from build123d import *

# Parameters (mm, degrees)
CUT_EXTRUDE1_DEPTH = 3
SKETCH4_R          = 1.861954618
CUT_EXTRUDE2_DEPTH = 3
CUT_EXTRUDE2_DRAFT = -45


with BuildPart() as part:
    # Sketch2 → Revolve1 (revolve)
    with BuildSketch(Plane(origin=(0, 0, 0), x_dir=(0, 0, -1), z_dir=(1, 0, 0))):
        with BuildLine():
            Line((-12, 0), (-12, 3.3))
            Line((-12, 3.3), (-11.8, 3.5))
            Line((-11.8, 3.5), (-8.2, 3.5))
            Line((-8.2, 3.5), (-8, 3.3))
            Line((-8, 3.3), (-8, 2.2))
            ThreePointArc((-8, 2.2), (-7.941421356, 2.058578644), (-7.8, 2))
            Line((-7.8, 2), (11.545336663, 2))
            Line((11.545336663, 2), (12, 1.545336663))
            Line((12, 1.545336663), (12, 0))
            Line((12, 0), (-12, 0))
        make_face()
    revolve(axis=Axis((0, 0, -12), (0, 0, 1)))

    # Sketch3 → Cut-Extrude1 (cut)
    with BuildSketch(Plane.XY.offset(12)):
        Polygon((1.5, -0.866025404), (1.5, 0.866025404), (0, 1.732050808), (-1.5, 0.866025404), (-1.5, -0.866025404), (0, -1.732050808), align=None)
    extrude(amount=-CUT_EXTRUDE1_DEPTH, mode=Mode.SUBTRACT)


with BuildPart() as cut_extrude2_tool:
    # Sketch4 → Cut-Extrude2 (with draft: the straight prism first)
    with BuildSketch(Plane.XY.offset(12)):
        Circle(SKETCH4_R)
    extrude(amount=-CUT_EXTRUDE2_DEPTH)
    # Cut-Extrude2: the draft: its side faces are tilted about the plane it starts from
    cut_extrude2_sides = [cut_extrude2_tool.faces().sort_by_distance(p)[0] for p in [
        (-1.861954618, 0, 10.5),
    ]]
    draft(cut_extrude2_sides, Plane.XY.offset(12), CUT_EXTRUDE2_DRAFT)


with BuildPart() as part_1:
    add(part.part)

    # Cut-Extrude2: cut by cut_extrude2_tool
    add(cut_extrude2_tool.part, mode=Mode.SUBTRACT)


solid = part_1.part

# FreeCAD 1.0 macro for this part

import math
import FreeCAD as App
import Part
import Sketcher

V = App.Vector
Q = App.Units.Quantity


def faces_at(feature, points):
    """Names of the faces that lie closest to the given points."""
    faces = feature.Shape.Faces
    near = lambda p: min(range(len(faces)), key=lambda i: faces[i].distToShape(Part.Vertex(*p))[0])
    return sorted({f"Face{near(p) + 1}" for p in points})

doc = App.newDocument("Part")
body = doc.addObject("PartDesign::Body", "Body")

sketch1 = body.newObject("Sketcher::SketchObject", "Sketch")
sketch1.AttachmentSupport = (doc.getObject("YZ_Plane"), [""])
sketch1.MapMode = "FlatFace"
sketch1.addGeometry([
    Part.LineSegment(V(3.3, 12, 0), V(0, 12, 0)),
    Part.LineSegment(V(0, 12, 0), V(0, -12, 0)),
    Part.LineSegment(V(0, -12, 0), V(1.55, -12, 0)),
    Part.LineSegment(V(1.55, -12, 0), V(2, -11.55, 0)),
    Part.LineSegment(V(2, -11.55, 0), V(2, 7.8, 0)),
    Part.ArcOfCircle(Part.Circle(V(2.2, 7.8, 0), V(0, 0, 1), 0.2), math.radians(90), math.radians(180)),
    Part.LineSegment(V(2.2, 8, 0), V(3.3, 8, 0)),
    Part.LineSegment(V(3.3, 8, 0), V(3.5, 8.2, 0)),
    Part.LineSegment(V(3.5, 8.2, 0), V(3.5, 11.8, 0)),
    Part.LineSegment(V(3.5, 11.8, 0), V(3.3, 12, 0)),
], False)
sketch1.addConstraint([
    Sketcher.Constraint("Coincident", 0, 2, 1, 1),
    Sketcher.Constraint("Coincident", 1, 2, 2, 1),
    Sketcher.Constraint("Coincident", 2, 2, 3, 1),
    Sketcher.Constraint("Coincident", 3, 2, 4, 1),
    Sketcher.Constraint("Tangent", 4, 2, 5, 2),
    Sketcher.Constraint("Tangent", 5, 1, 6, 1),
    Sketcher.Constraint("Coincident", 6, 2, 7, 1),
    Sketcher.Constraint("Coincident", 7, 2, 8, 1),
    Sketcher.Constraint("Coincident", 8, 2, 9, 1),
    Sketcher.Constraint("Coincident", 9, 2, 0, 1),
    Sketcher.Constraint("Horizontal", 0),
    Sketcher.Constraint("Vertical", 1),
    Sketcher.Constraint("Horizontal", 2),
    Sketcher.Constraint("Vertical", 4),
    Sketcher.Constraint("Horizontal", 6),
    Sketcher.Constraint("Vertical", 8),
    Sketcher.Constraint("Symmetric", 0, 2, 1, 2, -1, 1),
    Sketcher.Constraint("Parallel", 3, 7),
    Sketcher.Constraint("Perpendicular", 7, 9),
    Sketcher.Constraint("Vertical", 6, 2, 9, 2),
    Sketcher.Constraint("Equal", 7, 9),
    Sketcher.Constraint("Radius", 5, Q("0.2 mm")),
    Sketcher.Constraint("DistanceY", 1, 2, 1, 1, Q("24 mm")),
    Sketcher.Constraint("DistanceX", 0, 2, 0, 1, Q("3.3 mm")),
    Sketcher.Constraint("DistanceX", 6, 1, 6, 2, Q("1.1 mm")),
    Sketcher.Constraint("DistanceY", 8, 1, 8, 2, Q("3.6 mm")),
    Sketcher.Constraint("DistanceY", -1, 1, 5, 1, Q("8 mm")),
    Sketcher.Constraint("Distance", 3, Q("0.642991 mm")),
])
revolution = body.newObject("PartDesign::Revolution", "Revolution")
revolution.Profile = sketch1
revolution.ReferenceAxis = (sketch1, ["V_Axis"])
revolution.Angle = 360

sketch2 = body.newObject("Sketcher::SketchObject", "Sketch001")
sketch2.AttachmentSupport = (doc.getObject("XY_Plane"), [""])
sketch2.MapMode = "FlatFace"
sketch2.AttachmentOffset = App.Placement(V(0, 0, 12), App.Rotation())
sketch2.addGeometry([
    Part.LineSegment(V(1.5, -0.9, 0), V(1.5, 0.9, 0)),
    Part.LineSegment(V(1.5, 0.9, 0), V(0, 1.7, 0)),
    Part.LineSegment(V(0, 1.7, 0), V(-1.5, 0.9, 0)),
    Part.LineSegment(V(-1.5, 0.9, 0), V(-1.5, -0.9, 0)),
    Part.LineSegment(V(-1.5, -0.9, 0), V(0, -1.7, 0)),
    Part.LineSegment(V(0, -1.7, 0), V(1.5, -0.9, 0)),
], False)
sketch2.addConstraint([
    Sketcher.Constraint("Coincident", 0, 2, 1, 1),
    Sketcher.Constraint("Coincident", 1, 2, 2, 1),
    Sketcher.Constraint("Coincident", 2, 2, 3, 1),
    Sketcher.Constraint("Coincident", 3, 2, 4, 1),
    Sketcher.Constraint("Coincident", 4, 2, 5, 1),
    Sketcher.Constraint("Coincident", 5, 2, 0, 1),
    Sketcher.Constraint("Vertical", 0),
    Sketcher.Constraint("Vertical", 3),
    Sketcher.Constraint("Symmetric", 0, 2, 3, 2, -1, 1),
    Sketcher.Constraint("Symmetric", 1, 2, 4, 2, -1, 1),
    Sketcher.Constraint("PointOnObject", 1, 2, -2),
    Sketcher.Constraint("Parallel", 2, 5),
    Sketcher.Constraint("Horizontal", 0, 2, 2, 2),
    Sketcher.Constraint("Angle", 1, Q("150 deg")),
    Sketcher.Constraint("DistanceX", 2, 2, 0, 2, Q("3 mm")),
    Sketcher.Constraint("DistanceY", 0, 1, 0, 2, Q("1.732051 mm")),
])
pocket1 = body.newObject("PartDesign::Pocket", "Pocket")
pocket1.Profile = sketch2
pocket1.Length = 3
body2 = doc.addObject("PartDesign::Body", "Body001")

sketch3 = body2.newObject("Sketcher::SketchObject", "Sketch002")
sketch3.AttachmentSupport = (doc.getObject("XY_Plane001"), [""])
sketch3.MapMode = "FlatFace"
sketch3.AttachmentOffset = App.Placement(V(0, 0, 12), App.Rotation())
sketch3.addGeometry(Part.Circle(V(0, 0, 0), V(0, 0, 1), 1.9), False)
sketch3.addConstraint([
    Sketcher.Constraint("Coincident", 0, 3, -1, 1),
    Sketcher.Constraint("Diameter", 0, Q("3.723909 mm")),
])
pad1 = body2.newObject("PartDesign::Pad", "Pad")
pad1.Profile = sketch3
pad1.Length = 3
pad1.Reversed = True
doc.recompute()

datumplane = body2.newObject("PartDesign::Plane", "DatumPlane")
datumplane.AttachmentSupport = (doc.getObject("XY_Plane001"), [""])
datumplane.MapMode = "FlatFace"
datumplane.AttachmentOffset = App.Placement(V(0, 0, 12), App.Rotation())
draft = body2.newObject("PartDesign::Draft", "Draft")
draft.Base = (pad1, faces_at(pad1, [(-1.862, 0, 10.5)]))
draft.NeutralPlane = (datumplane, [""])
draft.Angle = 45
draft.Reversed = True
doc.recompute()

boolean = body.newObject("PartDesign::Boolean", "Boolean")
boolean.Type = "Cut"
boolean.addObjects([body2])

doc.recompute()
